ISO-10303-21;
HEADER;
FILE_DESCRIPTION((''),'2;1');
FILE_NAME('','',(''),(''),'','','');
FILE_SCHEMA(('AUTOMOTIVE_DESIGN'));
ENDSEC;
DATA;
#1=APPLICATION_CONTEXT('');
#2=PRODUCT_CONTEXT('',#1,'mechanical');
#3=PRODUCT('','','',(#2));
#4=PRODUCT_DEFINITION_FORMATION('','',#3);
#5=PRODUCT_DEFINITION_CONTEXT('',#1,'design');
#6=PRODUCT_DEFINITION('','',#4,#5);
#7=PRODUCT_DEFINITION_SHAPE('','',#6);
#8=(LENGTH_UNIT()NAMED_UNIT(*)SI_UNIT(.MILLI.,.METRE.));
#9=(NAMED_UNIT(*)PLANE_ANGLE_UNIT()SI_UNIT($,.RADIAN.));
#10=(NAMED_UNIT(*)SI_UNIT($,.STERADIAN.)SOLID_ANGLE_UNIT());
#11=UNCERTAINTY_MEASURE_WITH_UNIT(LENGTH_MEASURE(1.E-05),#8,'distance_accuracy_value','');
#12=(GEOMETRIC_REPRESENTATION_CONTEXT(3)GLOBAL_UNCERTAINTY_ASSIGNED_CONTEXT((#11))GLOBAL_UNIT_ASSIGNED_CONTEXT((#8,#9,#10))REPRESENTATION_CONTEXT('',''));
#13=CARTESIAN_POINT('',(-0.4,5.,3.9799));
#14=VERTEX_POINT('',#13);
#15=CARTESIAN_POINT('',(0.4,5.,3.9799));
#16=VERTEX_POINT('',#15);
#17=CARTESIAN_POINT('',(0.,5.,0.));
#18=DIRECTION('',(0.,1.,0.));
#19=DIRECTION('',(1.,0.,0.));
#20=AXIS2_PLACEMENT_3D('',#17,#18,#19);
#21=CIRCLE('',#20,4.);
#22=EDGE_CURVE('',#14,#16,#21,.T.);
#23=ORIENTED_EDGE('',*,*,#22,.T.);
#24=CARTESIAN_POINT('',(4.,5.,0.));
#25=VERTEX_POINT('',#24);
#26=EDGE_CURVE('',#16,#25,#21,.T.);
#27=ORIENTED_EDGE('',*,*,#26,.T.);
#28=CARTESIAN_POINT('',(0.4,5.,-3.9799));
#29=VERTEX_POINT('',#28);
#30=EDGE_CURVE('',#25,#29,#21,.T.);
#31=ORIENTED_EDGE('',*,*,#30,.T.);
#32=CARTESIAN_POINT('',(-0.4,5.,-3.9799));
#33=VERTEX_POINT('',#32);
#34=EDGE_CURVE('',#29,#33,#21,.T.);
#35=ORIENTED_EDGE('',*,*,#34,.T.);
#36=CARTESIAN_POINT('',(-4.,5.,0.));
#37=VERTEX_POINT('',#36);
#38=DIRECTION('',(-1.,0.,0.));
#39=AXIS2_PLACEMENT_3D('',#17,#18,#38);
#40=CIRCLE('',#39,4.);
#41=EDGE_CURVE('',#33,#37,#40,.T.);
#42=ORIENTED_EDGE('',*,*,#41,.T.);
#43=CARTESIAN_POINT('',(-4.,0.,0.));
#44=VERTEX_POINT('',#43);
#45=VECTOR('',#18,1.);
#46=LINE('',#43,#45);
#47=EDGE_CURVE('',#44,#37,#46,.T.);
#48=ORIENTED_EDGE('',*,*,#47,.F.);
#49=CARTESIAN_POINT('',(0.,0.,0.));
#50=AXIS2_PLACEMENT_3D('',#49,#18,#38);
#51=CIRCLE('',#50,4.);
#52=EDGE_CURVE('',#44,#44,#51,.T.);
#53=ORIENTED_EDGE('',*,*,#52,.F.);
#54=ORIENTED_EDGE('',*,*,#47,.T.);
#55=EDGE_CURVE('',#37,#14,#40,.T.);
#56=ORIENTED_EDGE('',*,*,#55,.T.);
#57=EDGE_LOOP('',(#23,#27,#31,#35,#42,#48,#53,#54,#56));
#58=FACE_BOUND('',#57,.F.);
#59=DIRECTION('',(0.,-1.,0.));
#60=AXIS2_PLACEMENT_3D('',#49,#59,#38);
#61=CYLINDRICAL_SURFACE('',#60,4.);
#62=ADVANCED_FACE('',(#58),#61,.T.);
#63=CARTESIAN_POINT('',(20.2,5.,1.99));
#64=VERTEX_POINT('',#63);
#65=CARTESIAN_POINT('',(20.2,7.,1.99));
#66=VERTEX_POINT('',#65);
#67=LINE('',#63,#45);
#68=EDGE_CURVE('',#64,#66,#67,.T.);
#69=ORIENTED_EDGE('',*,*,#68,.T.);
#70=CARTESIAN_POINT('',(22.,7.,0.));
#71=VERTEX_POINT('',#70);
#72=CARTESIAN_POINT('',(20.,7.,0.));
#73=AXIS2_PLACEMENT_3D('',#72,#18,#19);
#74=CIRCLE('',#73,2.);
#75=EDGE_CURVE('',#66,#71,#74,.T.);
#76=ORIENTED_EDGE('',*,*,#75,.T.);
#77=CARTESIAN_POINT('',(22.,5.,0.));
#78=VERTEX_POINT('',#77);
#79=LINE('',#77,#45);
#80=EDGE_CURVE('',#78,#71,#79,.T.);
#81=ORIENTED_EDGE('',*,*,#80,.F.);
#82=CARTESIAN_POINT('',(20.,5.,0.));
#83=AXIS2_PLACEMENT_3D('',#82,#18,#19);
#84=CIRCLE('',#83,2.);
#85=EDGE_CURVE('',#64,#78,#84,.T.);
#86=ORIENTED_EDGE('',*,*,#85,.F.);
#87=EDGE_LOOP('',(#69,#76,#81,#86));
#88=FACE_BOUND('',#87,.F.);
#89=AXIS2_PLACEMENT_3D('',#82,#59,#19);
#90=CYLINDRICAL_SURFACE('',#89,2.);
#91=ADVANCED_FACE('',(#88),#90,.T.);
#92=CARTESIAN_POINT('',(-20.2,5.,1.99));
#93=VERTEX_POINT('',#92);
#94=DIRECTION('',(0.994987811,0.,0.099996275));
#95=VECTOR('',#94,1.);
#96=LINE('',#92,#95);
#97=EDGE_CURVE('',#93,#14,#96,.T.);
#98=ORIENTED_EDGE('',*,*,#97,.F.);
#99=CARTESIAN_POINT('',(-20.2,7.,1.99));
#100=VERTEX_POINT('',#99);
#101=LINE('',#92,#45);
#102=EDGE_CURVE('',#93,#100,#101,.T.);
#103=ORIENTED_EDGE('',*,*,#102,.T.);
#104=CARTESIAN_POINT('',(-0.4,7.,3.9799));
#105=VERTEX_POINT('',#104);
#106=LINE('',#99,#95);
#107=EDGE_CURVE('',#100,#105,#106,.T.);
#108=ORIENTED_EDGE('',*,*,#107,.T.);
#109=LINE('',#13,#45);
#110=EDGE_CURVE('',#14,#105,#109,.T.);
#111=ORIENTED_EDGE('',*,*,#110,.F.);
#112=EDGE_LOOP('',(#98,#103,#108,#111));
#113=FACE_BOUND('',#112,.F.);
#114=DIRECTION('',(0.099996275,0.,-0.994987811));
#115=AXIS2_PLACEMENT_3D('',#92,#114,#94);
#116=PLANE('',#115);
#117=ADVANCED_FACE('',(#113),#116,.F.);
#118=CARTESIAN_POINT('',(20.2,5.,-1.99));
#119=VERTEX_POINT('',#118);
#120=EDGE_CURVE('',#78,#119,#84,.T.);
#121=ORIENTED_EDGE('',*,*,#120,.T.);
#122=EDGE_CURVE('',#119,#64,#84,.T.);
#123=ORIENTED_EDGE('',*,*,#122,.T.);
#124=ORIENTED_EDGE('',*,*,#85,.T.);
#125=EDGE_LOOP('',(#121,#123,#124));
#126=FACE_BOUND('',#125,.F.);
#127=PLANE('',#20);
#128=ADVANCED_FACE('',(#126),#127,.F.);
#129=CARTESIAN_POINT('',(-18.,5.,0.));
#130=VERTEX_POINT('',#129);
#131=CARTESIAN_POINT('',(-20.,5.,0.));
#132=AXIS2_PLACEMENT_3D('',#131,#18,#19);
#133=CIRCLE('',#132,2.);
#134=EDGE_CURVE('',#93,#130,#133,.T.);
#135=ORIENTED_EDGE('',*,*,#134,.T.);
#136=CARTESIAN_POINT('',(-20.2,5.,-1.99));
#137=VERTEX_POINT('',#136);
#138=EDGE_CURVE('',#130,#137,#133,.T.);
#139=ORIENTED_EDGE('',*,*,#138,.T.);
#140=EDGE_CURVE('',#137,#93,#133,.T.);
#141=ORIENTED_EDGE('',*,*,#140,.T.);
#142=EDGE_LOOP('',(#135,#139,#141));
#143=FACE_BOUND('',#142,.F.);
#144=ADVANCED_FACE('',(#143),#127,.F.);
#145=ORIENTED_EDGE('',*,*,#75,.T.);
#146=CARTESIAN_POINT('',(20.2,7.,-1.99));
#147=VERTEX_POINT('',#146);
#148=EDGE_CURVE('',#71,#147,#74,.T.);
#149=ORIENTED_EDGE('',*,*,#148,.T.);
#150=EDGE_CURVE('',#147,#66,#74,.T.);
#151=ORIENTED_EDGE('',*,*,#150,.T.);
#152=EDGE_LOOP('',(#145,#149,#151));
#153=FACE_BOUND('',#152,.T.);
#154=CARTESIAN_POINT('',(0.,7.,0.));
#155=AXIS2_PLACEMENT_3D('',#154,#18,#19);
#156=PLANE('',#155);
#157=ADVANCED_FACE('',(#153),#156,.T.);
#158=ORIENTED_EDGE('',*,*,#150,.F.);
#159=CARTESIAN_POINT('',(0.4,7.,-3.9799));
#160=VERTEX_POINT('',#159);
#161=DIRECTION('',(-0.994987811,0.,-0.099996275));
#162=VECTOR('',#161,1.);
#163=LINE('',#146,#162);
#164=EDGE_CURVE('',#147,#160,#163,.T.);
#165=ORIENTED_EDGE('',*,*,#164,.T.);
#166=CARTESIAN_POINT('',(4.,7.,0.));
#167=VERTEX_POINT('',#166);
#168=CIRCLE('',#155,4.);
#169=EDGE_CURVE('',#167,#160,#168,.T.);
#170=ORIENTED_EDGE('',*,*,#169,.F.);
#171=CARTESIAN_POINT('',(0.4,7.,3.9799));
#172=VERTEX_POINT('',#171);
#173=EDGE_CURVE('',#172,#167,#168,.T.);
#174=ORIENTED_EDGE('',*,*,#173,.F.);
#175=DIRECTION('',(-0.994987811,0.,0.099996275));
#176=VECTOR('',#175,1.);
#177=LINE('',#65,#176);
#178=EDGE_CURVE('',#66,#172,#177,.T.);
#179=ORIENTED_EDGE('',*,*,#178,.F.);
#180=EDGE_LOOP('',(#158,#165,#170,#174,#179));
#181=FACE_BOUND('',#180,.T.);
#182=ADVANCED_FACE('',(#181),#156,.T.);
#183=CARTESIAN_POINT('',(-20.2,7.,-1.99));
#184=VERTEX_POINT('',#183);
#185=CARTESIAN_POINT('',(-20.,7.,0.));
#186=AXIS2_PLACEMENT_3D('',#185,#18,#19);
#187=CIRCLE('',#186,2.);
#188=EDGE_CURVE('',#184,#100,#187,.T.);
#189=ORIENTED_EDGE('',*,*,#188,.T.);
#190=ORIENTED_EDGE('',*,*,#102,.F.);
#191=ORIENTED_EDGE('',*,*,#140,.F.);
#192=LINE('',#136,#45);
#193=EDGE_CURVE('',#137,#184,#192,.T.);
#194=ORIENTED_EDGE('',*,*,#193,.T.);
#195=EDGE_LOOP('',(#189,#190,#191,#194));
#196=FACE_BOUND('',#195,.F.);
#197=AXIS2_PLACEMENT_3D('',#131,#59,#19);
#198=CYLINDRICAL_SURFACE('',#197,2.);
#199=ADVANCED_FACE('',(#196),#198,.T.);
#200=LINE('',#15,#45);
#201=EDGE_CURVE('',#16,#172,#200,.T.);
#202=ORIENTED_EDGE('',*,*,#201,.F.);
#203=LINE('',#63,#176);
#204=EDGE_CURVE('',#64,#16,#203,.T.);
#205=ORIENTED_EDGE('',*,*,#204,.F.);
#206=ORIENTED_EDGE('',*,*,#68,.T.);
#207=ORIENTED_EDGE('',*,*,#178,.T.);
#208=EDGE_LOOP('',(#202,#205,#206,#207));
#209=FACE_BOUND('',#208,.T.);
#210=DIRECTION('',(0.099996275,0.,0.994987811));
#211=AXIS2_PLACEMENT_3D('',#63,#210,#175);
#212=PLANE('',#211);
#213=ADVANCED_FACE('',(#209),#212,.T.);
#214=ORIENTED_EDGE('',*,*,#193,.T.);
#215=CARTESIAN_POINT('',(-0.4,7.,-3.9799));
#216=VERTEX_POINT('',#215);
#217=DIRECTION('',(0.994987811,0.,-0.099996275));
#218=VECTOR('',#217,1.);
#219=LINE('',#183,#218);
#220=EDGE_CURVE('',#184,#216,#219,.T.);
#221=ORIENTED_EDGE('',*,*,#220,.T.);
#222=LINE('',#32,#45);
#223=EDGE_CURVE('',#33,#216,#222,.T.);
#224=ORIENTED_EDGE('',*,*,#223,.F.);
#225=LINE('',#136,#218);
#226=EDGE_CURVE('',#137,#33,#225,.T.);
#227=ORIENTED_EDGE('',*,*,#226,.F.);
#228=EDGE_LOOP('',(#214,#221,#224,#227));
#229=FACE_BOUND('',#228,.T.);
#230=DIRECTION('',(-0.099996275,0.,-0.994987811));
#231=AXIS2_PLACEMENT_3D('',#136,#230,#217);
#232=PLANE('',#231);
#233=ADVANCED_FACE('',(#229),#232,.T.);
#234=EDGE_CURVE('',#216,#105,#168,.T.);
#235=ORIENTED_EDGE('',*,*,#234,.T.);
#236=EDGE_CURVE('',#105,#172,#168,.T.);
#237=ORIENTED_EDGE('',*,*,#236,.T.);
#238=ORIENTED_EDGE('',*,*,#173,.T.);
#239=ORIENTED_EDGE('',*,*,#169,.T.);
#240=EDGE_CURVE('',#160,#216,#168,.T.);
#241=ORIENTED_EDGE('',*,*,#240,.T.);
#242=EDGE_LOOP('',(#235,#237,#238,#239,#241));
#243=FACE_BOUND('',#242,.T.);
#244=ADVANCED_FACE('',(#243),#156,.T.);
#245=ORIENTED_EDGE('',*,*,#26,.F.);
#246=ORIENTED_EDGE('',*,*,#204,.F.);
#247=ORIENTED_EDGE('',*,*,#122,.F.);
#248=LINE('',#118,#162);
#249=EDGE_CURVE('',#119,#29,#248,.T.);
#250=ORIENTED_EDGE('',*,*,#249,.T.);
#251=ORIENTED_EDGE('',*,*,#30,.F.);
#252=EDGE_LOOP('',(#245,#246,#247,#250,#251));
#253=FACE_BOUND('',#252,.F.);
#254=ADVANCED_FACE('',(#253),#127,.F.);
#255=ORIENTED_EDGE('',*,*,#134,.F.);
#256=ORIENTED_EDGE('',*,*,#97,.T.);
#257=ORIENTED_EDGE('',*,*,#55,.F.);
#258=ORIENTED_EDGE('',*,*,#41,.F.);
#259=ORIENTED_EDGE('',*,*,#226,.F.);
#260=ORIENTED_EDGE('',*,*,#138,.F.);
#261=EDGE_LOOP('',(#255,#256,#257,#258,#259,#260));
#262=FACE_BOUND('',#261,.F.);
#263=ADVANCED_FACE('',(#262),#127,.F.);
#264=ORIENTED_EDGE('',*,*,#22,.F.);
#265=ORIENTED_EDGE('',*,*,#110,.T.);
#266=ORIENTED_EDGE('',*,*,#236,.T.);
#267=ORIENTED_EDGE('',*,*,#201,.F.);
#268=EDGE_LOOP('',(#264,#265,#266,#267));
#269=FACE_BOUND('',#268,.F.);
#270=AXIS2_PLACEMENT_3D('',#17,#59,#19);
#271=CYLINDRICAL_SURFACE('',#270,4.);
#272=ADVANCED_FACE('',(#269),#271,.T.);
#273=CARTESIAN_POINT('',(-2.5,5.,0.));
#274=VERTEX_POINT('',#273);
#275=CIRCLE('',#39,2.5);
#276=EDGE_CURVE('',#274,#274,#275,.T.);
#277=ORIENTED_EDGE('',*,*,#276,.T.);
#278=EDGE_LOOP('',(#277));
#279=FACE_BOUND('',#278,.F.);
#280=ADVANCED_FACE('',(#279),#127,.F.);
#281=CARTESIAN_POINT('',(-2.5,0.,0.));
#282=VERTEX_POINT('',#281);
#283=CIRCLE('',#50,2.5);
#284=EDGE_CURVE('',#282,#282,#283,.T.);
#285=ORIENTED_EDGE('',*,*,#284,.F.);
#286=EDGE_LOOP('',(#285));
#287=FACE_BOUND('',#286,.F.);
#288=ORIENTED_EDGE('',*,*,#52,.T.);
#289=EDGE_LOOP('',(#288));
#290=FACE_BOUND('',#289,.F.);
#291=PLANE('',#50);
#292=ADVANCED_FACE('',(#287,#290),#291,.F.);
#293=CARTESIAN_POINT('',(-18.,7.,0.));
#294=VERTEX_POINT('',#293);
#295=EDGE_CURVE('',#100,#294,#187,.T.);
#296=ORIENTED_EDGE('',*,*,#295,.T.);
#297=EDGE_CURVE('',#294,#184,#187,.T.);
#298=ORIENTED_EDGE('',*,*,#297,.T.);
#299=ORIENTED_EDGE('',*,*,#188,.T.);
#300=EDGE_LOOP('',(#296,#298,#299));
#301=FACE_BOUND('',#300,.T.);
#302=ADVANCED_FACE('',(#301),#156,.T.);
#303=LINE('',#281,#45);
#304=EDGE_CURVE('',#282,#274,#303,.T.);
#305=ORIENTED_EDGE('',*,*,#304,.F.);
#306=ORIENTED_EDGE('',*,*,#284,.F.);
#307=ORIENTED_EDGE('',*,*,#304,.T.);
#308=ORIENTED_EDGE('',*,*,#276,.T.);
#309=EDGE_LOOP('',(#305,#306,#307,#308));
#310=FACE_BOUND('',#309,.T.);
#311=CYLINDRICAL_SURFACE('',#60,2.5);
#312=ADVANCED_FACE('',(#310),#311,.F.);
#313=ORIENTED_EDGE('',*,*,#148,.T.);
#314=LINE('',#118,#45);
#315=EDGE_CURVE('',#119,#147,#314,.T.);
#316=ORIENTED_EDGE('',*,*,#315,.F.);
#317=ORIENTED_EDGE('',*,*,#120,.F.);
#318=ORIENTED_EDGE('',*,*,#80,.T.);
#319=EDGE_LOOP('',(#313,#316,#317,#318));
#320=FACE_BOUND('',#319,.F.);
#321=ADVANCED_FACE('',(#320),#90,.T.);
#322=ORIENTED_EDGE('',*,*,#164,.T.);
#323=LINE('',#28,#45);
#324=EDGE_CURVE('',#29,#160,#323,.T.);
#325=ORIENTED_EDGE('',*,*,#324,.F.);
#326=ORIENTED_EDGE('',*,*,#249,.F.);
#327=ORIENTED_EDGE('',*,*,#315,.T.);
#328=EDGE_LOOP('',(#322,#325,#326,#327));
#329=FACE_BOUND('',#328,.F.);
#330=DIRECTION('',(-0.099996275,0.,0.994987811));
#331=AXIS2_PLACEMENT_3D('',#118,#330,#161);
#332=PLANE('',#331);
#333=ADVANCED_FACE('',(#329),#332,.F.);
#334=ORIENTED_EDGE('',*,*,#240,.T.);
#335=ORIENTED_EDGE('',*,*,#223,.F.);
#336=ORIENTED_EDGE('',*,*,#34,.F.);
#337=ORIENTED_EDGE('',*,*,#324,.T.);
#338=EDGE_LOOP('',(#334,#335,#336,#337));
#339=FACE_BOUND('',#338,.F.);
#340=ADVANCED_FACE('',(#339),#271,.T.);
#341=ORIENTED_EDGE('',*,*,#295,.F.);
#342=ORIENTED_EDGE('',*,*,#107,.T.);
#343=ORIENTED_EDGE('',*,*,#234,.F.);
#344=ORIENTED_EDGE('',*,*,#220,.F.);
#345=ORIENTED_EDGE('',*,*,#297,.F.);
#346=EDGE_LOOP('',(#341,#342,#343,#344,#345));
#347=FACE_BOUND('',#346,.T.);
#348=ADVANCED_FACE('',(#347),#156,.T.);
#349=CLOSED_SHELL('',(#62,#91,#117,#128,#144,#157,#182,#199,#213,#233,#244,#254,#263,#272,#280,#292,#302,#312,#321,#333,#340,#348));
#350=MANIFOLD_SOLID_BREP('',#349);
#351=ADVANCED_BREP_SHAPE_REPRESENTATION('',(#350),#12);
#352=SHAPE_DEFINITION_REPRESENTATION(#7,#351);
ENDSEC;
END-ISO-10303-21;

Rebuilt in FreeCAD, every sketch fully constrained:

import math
import FreeCAD as App
import Part
import Sketcher
Q = App.Units.Quantity

doc = App.newDocument("Part")
body = doc.addObject("PartDesign::Body", "Body")

sketch1 = body.newObject("Sketcher::SketchObject", "Sketch")
sketch1.AttachmentSupport = (doc.getObject("XZ_Plane"), [""])
sketch1.MapMode = "FlatFace"
sketch1.addGeometry([
    Part.Circle(App.Vector(0, 0, 0), App.Vector(0, 0, 1), 4),
    Part.Circle(App.Vector(0, 0, 0), App.Vector(0, 0, 1), 2.5),
], False)
sketch1.addConstraint([
    Sketcher.Constraint("Coincident", 0, 3, -1, 1),
    Sketcher.Constraint("Coincident", 1, 3, -1, 1),
    Sketcher.Constraint("Diameter", 1, Q("5 mm")),
    Sketcher.Constraint("Diameter", 0, Q("8 mm")),
])
pad1 = body.newObject("PartDesign::Pad", "Pad")
pad1.Profile = sketch1
pad1.Length = 5
pad1.Reversed = True

sketch2 = body.newObject("Sketcher::SketchObject", "Sketch001")
sketch2.AttachmentSupport = (doc.getObject("XZ_Plane"), [""])
sketch2.MapMode = "FlatFace"
sketch2.AttachmentOffset = App.Placement(App.Vector(0, 0, -5), App.Rotation())
sketch2.addGeometry([
    Part.ArcOfCircle(Part.Circle(App.Vector(0, 0, 0), App.Vector(0, 0, 1), 4), math.radians(84.26), math.radians(95.74)),
    Part.LineSegment(App.Vector(0.4, 4, 0), App.Vector(20.2, 2, 0)),
    Part.ArcOfCircle(Part.Circle(App.Vector(20, 0, 0), App.Vector(0, 0, 1), 2), math.radians(-84), math.radians(84)),
    Part.LineSegment(App.Vector(20.2, -2, 0), App.Vector(0.4, -4, 0)),
    Part.ArcOfCircle(Part.Circle(App.Vector(0, 0, 0), App.Vector(0, 0, 1), 4), math.radians(-95.74), math.radians(-84.26)),
    Part.LineSegment(App.Vector(-0.4, -4, 0), App.Vector(-20.2, -2, 0)),
    Part.ArcOfCircle(Part.Circle(App.Vector(-20, 0, 0), App.Vector(0, 0, 1), 2), math.radians(96), math.radians(264)),
    Part.LineSegment(App.Vector(-20.2, 2, 0), App.Vector(-0.4, 4, 0)),
], False)
sketch2.addConstraint([
    Sketcher.Constraint("Tangent", 0, 1, 1, 1),
    Sketcher.Constraint("Tangent", 1, 2, 2, 2),
    Sketcher.Constraint("Tangent", 2, 1, 3, 1),
    Sketcher.Constraint("Tangent", 3, 2, 4, 2),
    Sketcher.Constraint("Tangent", 4, 1, 5, 1),
    Sketcher.Constraint("Tangent", 5, 2, 6, 2),
    Sketcher.Constraint("Tangent", 6, 1, 7, 1),
    Sketcher.Constraint("Tangent", 7, 2, 0, 2),
    Sketcher.Constraint("Coincident", 0, 3, -1, 1),
    Sketcher.Constraint("Coincident", 4, 3, -1, 1),
    Sketcher.Constraint("Equal", 0, 4),
    Sketcher.Constraint("Equal", 2, 6),
    Sketcher.Constraint("Symmetric", 2, 3, 6, 3, -1, 1),
    Sketcher.Constraint("PointOnObject", 2, 3, -1),
    Sketcher.Constraint("Radius", 0, Q("4 mm")),
    Sketcher.Constraint("Radius", 2, Q("2 mm")),
    Sketcher.Constraint("DistanceX", -1, 1, 2, 3, Q("20 mm")),
])
pad2 = body.newObject("PartDesign::Pad", "Pad001")
pad2.Profile = sketch2
pad2.Length = 2
pad2.Reversed = True

doc.recompute()
